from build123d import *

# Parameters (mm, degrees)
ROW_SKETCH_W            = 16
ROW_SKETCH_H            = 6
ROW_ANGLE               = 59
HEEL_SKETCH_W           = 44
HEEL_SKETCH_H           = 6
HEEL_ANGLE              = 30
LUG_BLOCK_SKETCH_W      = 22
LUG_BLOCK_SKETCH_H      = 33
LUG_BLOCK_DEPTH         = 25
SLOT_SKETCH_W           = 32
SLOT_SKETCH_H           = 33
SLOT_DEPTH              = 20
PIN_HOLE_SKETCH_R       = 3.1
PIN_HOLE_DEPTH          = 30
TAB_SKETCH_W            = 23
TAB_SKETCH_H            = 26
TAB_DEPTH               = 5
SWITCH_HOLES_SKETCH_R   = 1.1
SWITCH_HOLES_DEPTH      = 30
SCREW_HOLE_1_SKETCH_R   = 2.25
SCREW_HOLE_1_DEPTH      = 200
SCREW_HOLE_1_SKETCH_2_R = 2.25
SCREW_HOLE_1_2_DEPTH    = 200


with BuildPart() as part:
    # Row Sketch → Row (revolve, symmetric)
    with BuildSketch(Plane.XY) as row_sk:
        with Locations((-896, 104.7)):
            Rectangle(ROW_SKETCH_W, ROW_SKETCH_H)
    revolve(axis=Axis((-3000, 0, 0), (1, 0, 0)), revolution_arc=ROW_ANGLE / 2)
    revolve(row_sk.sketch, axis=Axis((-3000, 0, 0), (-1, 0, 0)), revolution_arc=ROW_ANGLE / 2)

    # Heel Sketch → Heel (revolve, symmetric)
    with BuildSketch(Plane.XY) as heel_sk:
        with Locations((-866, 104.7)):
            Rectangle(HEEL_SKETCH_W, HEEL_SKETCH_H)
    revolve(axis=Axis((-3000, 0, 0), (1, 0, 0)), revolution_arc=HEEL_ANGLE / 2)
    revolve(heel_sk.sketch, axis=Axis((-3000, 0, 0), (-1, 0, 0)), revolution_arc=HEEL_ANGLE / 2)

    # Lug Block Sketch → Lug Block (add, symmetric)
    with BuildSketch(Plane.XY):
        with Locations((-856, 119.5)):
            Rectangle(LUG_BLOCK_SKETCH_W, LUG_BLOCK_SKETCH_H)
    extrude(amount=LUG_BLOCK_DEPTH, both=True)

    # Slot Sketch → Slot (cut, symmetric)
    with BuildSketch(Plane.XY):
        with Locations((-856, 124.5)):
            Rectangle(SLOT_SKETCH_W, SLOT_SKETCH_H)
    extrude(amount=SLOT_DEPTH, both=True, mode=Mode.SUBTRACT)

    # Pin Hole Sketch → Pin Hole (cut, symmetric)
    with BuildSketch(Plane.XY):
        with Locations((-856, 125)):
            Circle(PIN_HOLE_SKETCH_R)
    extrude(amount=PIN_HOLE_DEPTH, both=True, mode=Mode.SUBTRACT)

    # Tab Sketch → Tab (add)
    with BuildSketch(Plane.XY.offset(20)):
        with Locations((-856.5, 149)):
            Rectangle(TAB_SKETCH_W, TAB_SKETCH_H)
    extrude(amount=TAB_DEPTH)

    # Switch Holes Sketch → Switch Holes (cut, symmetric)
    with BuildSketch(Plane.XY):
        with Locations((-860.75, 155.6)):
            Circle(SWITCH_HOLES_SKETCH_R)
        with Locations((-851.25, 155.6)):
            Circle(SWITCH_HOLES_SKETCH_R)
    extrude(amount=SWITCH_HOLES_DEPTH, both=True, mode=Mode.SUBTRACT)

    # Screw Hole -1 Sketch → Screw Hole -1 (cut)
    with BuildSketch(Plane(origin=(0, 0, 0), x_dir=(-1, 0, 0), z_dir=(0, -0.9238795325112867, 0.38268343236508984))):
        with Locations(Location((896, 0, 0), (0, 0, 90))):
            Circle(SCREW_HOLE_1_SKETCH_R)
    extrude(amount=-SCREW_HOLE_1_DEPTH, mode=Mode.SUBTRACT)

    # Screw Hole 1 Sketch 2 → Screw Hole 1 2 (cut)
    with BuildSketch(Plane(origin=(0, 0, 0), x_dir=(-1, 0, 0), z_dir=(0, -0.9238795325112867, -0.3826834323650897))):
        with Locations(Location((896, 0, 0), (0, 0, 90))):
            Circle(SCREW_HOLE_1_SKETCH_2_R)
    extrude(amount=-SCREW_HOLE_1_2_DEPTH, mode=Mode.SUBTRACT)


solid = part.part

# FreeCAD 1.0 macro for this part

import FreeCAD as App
import Part
import Sketcher

doc = App.newDocument("Part")
body = doc.addObject("PartDesign::Body", "Body")

# Sketch on XY plane
sketch1 = body.newObject("Sketcher::SketchObject", "Sketch")
sketch1.AttachmentSupport = (doc.getObject("XY_Plane"), [""])
sketch1.MapMode = "FlatFace"
sketch1.addGeometry(Part.LineSegment(App.Vector(-904, 108, 0), App.Vector(-904, 102, 0)), False)
sketch1.addGeometry(Part.LineSegment(App.Vector(-904, 102, 0), App.Vector(-888, 102, 0)), False)
sketch1.addGeometry(Part.LineSegment(App.Vector(-888, 102, 0), App.Vector(-888, 108, 0)), False)
sketch1.addGeometry(Part.LineSegment(App.Vector(-888, 108, 0), App.Vector(-904, 108, 0)), False)
sketch1.addConstraint(Sketcher.Constraint("Coincident", 0, 2, 1, 1))
sketch1.addConstraint(Sketcher.Constraint("Coincident", 1, 2, 2, 1))
sketch1.addConstraint(Sketcher.Constraint("Coincident", 2, 2, 3, 1))
sketch1.addConstraint(Sketcher.Constraint("Coincident", 3, 2, 0, 1))
sketch1.addConstraint(Sketcher.Constraint("Vertical", 0))
sketch1.addConstraint(Sketcher.Constraint("Horizontal", 1))
sketch1.addConstraint(Sketcher.Constraint("Vertical", 2))
sketch1.addConstraint(Sketcher.Constraint("Horizontal", 3))
sketch1.addConstraint(Sketcher.Constraint("DistanceX", 1, 1, 1, 2, 16.0))
sketch1.addConstraint(Sketcher.Constraint("DistanceY", 0, 2, 0, 1, 6.0))
sketch1.addConstraint(Sketcher.Constraint("DistanceX", 0, 2, -1, 1, 904.0))
sketch1.addConstraint(Sketcher.Constraint("DistanceY", -1, 1, 0, 2, 101.7))
revolution = body.newObject("PartDesign::Revolution", "Revolution")
revolution.Profile = sketch1
revolution.ReferenceAxis = (sketch1, ["H_Axis"])
revolution.Angle = 29.5

# Sketch on XY plane
sketch2 = body.newObject("Sketcher::SketchObject", "Sketch001")
sketch2.AttachmentSupport = (doc.getObject("XY_Plane"), [""])
sketch2.MapMode = "FlatFace"
sketch2.addGeometry(Part.LineSegment(App.Vector(-904, 108, 0), App.Vector(-904, 102, 0)), False)
sketch2.addGeometry(Part.LineSegment(App.Vector(-904, 102, 0), App.Vector(-888, 102, 0)), False)
sketch2.addGeometry(Part.LineSegment(App.Vector(-888, 102, 0), App.Vector(-888, 108, 0)), False)
sketch2.addGeometry(Part.LineSegment(App.Vector(-888, 108, 0), App.Vector(-904, 108, 0)), False)
sketch2.addConstraint(Sketcher.Constraint("Coincident", 0, 2, 1, 1))
sketch2.addConstraint(Sketcher.Constraint("Coincident", 1, 2, 2, 1))
sketch2.addConstraint(Sketcher.Constraint("Coincident", 2, 2, 3, 1))
sketch2.addConstraint(Sketcher.Constraint("Coincident", 3, 2, 0, 1))
sketch2.addConstraint(Sketcher.Constraint("Vertical", 0))
sketch2.addConstraint(Sketcher.Constraint("Horizontal", 1))
sketch2.addConstraint(Sketcher.Constraint("Vertical", 2))
sketch2.addConstraint(Sketcher.Constraint("Horizontal", 3))
sketch2.addConstraint(Sketcher.Constraint("DistanceX", 1, 1, 1, 2, 16.0))
sketch2.addConstraint(Sketcher.Constraint("DistanceY", 0, 2, 0, 1, 6.0))
sketch2.addConstraint(Sketcher.Constraint("DistanceX", 0, 2, -1, 1, 904.0))
sketch2.addConstraint(Sketcher.Constraint("DistanceY", -1, 1, 0, 2, 101.7))
revolution2 = body.newObject("PartDesign::Revolution", "Revolution001")
revolution2.Profile = sketch2
revolution2.ReferenceAxis = (sketch2, ["H_Axis"])
revolution2.Angle = 29.5
revolution2.Reversed = True

# Sketch on XY plane
sketch3 = body.newObject("Sketcher::SketchObject", "Sketch002")
sketch3.AttachmentSupport = (doc.getObject("XY_Plane"), [""])
sketch3.MapMode = "FlatFace"
sketch3.addGeometry(Part.LineSegment(App.Vector(-888, 108, 0), App.Vector(-888, 102, 0)), False)
sketch3.addGeometry(Part.LineSegment(App.Vector(-888, 102, 0), App.Vector(-844, 102, 0)), False)
sketch3.addGeometry(Part.LineSegment(App.Vector(-844, 102, 0), App.Vector(-844, 108, 0)), False)
sketch3.addGeometry(Part.LineSegment(App.Vector(-844, 108, 0), App.Vector(-888, 108, 0)), False)
sketch3.addConstraint(Sketcher.Constraint("Coincident", 0, 2, 1, 1))
sketch3.addConstraint(Sketcher.Constraint("Coincident", 1, 2, 2, 1))
sketch3.addConstraint(Sketcher.Constraint("Coincident", 2, 2, 3, 1))
sketch3.addConstraint(Sketcher.Constraint("Coincident", 3, 2, 0, 1))
sketch3.addConstraint(Sketcher.Constraint("Vertical", 0))
sketch3.addConstraint(Sketcher.Constraint("Horizontal", 1))
sketch3.addConstraint(Sketcher.Constraint("Vertical", 2))
sketch3.addConstraint(Sketcher.Constraint("Horizontal", 3))
sketch3.addConstraint(Sketcher.Constraint("DistanceX", 1, 1, 1, 2, 44.0))
sketch3.addConstraint(Sketcher.Constraint("DistanceY", 0, 2, 0, 1, 6.0))
sketch3.addConstraint(Sketcher.Constraint("DistanceX", 0, 2, -1, 1, 888.0))
sketch3.addConstraint(Sketcher.Constraint("DistanceY", -1, 1, 0, 2, 101.7))
revolution3 = body.newObject("PartDesign::Revolution", "Revolution002")
revolution3.Profile = sketch3
revolution3.ReferenceAxis = (sketch3, ["H_Axis"])
revolution3.Angle = 15

# Sketch on XY plane
sketch4 = body.newObject("Sketcher::SketchObject", "Sketch003")
sketch4.AttachmentSupport = (doc.getObject("XY_Plane"), [""])
sketch4.MapMode = "FlatFace"
sketch4.addGeometry(Part.LineSegment(App.Vector(-888, 108, 0), App.Vector(-888, 102, 0)), False)
sketch4.addGeometry(Part.LineSegment(App.Vector(-888, 102, 0), App.Vector(-844, 102, 0)), False)
sketch4.addGeometry(Part.LineSegment(App.Vector(-844, 102, 0), App.Vector(-844, 108, 0)), False)
sketch4.addGeometry(Part.LineSegment(App.Vector(-844, 108, 0), App.Vector(-888, 108, 0)), False)
sketch4.addConstraint(Sketcher.Constraint("Coincident", 0, 2, 1, 1))
sketch4.addConstraint(Sketcher.Constraint("Coincident", 1, 2, 2, 1))
sketch4.addConstraint(Sketcher.Constraint("Coincident", 2, 2, 3, 1))
sketch4.addConstraint(Sketcher.Constraint("Coincident", 3, 2, 0, 1))
sketch4.addConstraint(Sketcher.Constraint("Vertical", 0))
sketch4.addConstraint(Sketcher.Constraint("Horizontal", 1))
sketch4.addConstraint(Sketcher.Constraint("Vertical", 2))
sketch4.addConstraint(Sketcher.Constraint("Horizontal", 3))
sketch4.addConstraint(Sketcher.Constraint("DistanceX", 1, 1, 1, 2, 44.0))
sketch4.addConstraint(Sketcher.Constraint("DistanceY", 0, 2, 0, 1, 6.0))
sketch4.addConstraint(Sketcher.Constraint("DistanceX", 0, 2, -1, 1, 888.0))
sketch4.addConstraint(Sketcher.Constraint("DistanceY", -1, 1, 0, 2, 101.7))
revolution4 = body.newObject("PartDesign::Revolution", "Revolution003")
revolution4.Profile = sketch4
revolution4.ReferenceAxis = (sketch4, ["H_Axis"])
revolution4.Angle = 15
revolution4.Reversed = True

# Sketch on XY plane
sketch5 = body.newObject("Sketcher::SketchObject", "Sketch004")
sketch5.AttachmentSupport = (doc.getObject("XY_Plane"), [""])
sketch5.MapMode = "FlatFace"
sketch5.addGeometry(Part.LineSegment(App.Vector(-867, 136, 0), App.Vector(-867, 103, 0)), False)
sketch5.addGeometry(Part.LineSegment(App.Vector(-867, 103, 0), App.Vector(-845, 103, 0)), False)
sketch5.addGeometry(Part.LineSegment(App.Vector(-845, 103, 0), App.Vector(-845, 136, 0)), False)
sketch5.addGeometry(Part.LineSegment(App.Vector(-845, 136, 0), App.Vector(-867, 136, 0)), False)
sketch5.addConstraint(Sketcher.Constraint("Coincident", 0, 2, 1, 1))
sketch5.addConstraint(Sketcher.Constraint("Coincident", 1, 2, 2, 1))
sketch5.addConstraint(Sketcher.Constraint("Coincident", 2, 2, 3, 1))
sketch5.addConstraint(Sketcher.Constraint("Coincident", 3, 2, 0, 1))
sketch5.addConstraint(Sketcher.Constraint("Vertical", 0))
sketch5.addConstraint(Sketcher.Constraint("Horizontal", 1))
sketch5.addConstraint(Sketcher.Constraint("Vertical", 2))
sketch5.addConstraint(Sketcher.Constraint("Horizontal", 3))
sketch5.addConstraint(Sketcher.Constraint("DistanceX", 1, 1, 1, 2, 22.0))
sketch5.addConstraint(Sketcher.Constraint("DistanceY", 0, 2, 0, 1, 33.0))
sketch5.addConstraint(Sketcher.Constraint("DistanceX", 0, 2, -1, 1, 867.0))
sketch5.addConstraint(Sketcher.Constraint("DistanceY", -1, 1, 0, 2, 103.0))
pad1 = body.newObject("PartDesign::Pad", "Pad")
pad1.Profile = sketch5
pad1.Length = 50
pad1.Midplane = True

# Sketch on XY plane
sketch6 = body.newObject("Sketcher::SketchObject", "Sketch005")
sketch6.AttachmentSupport = (doc.getObject("XY_Plane"), [""])
sketch6.MapMode = "FlatFace"
sketch6.addGeometry(Part.LineSegment(App.Vector(-872, 141, 0), App.Vector(-872, 108, 0)), False)
sketch6.addGeometry(Part.LineSegment(App.Vector(-872, 108, 0), App.Vector(-840, 108, 0)), False)
sketch6.addGeometry(Part.LineSegment(App.Vector(-840, 108, 0), App.Vector(-840, 141, 0)), False)
sketch6.addGeometry(Part.LineSegment(App.Vector(-840, 141, 0), App.Vector(-872, 141, 0)), False)
sketch6.addConstraint(Sketcher.Constraint("Coincident", 0, 2, 1, 1))
sketch6.addConstraint(Sketcher.Constraint("Coincident", 1, 2, 2, 1))
sketch6.addConstraint(Sketcher.Constraint("Coincident", 2, 2, 3, 1))
sketch6.addConstraint(Sketcher.Constraint("Coincident", 3, 2, 0, 1))
sketch6.addConstraint(Sketcher.Constraint("Vertical", 0))
sketch6.addConstraint(Sketcher.Constraint("Horizontal", 1))
sketch6.addConstraint(Sketcher.Constraint("Vertical", 2))
sketch6.addConstraint(Sketcher.Constraint("Horizontal", 3))
sketch6.addConstraint(Sketcher.Constraint("DistanceX", 1, 1, 1, 2, 32.0))
sketch6.addConstraint(Sketcher.Constraint("DistanceY", 0, 2, 0, 1, 33.0))
sketch6.addConstraint(Sketcher.Constraint("DistanceX", 0, 2, -1, 1, 872.0))
sketch6.addConstraint(Sketcher.Constraint("DistanceY", -1, 1, 0, 2, 108.0))
pocket1 = body.newObject("PartDesign::Pocket", "Pocket")
pocket1.Profile = sketch6
pocket1.Length = 40
pocket1.Midplane = True

# Sketch on XY plane
sketch7 = body.newObject("Sketcher::SketchObject", "Sketch006")
sketch7.AttachmentSupport = (doc.getObject("XY_Plane"), [""])
sketch7.MapMode = "FlatFace"
sketch7.addGeometry(Part.Circle(App.Vector(-856, 125, 0), App.Vector(0, 0, 1), 3.1), False)
sketch7.addConstraint(Sketcher.Constraint("Diameter", 0, 6.2))
sketch7.addConstraint(Sketcher.Constraint("DistanceX", 0, 3, -1, 1, 856.0))
sketch7.addConstraint(Sketcher.Constraint("DistanceY", -1, 1, 0, 3, 125.0))
pocket2 = body.newObject("PartDesign::Pocket", "Pocket001")
pocket2.Profile = sketch7
pocket2.Length = 60
pocket2.Midplane = True

# Sketch on XY plane
sketch8 = body.newObject("Sketcher::SketchObject", "Sketch007")
sketch8.AttachmentSupport = (doc.getObject("XY_Plane"), [""])
sketch8.MapMode = "FlatFace"
sketch8.AttachmentOffset = App.Placement(App.Vector(0, 0, 20), App.Rotation())
sketch8.addGeometry(Part.LineSegment(App.Vector(-868, 162, 0), App.Vector(-868, 136, 0)), False)
sketch8.addGeometry(Part.LineSegment(App.Vector(-868, 136, 0), App.Vector(-845, 136, 0)), False)
sketch8.addGeometry(Part.LineSegment(App.Vector(-845, 136, 0), App.Vector(-845, 162, 0)), False)
sketch8.addGeometry(Part.LineSegment(App.Vector(-845, 162, 0), App.Vector(-868, 162, 0)), False)
sketch8.addConstraint(Sketcher.Constraint("Coincident", 0, 2, 1, 1))
sketch8.addConstraint(Sketcher.Constraint("Coincident", 1, 2, 2, 1))
sketch8.addConstraint(Sketcher.Constraint("Coincident", 2, 2, 3, 1))
sketch8.addConstraint(Sketcher.Constraint("Coincident", 3, 2, 0, 1))
sketch8.addConstraint(Sketcher.Constraint("Vertical", 0))
sketch8.addConstraint(Sketcher.Constraint("Horizontal", 1))
sketch8.addConstraint(Sketcher.Constraint("Vertical", 2))
sketch8.addConstraint(Sketcher.Constraint("Horizontal", 3))
sketch8.addConstraint(Sketcher.Constraint("DistanceX", 1, 1, 1, 2, 23.0))
sketch8.addConstraint(Sketcher.Constraint("DistanceY", 0, 2, 0, 1, 26.0))
sketch8.addConstraint(Sketcher.Constraint("DistanceX", 0, 2, -1, 1, 868.0))
sketch8.addConstraint(Sketcher.Constraint("DistanceY", -1, 1, 0, 2, 136.0))
pad2 = body.newObject("PartDesign::Pad", "Pad001")
pad2.Profile = sketch8
pad2.Length = 5

# Sketch on XY plane
sketch9 = body.newObject("Sketcher::SketchObject", "Sketch008")
sketch9.AttachmentSupport = (doc.getObject("XY_Plane"), [""])
sketch9.MapMode = "FlatFace"
sketch9.addGeometry(Part.Circle(App.Vector(-860.8, 155.6, 0), App.Vector(0, 0, 1), 1.1), False)
sketch9.addGeometry(Part.Circle(App.Vector(-851.2, 155.6, 0), App.Vector(0, 0, 1), 1.1), False)
sketch9.addConstraint(Sketcher.Constraint("Equal", 0, 1))
sketch9.addConstraint(Sketcher.Constraint("Horizontal", 0, 3, 1, 3))
sketch9.addConstraint(Sketcher.Constraint("Diameter", 0, 2.2))
sketch9.addConstraint(Sketcher.Constraint("DistanceY", -1, 1, 0, 3, 155.6))
sketch9.addConstraint(Sketcher.Constraint("DistanceX", 0, 3, 1, 3, 9.5))
sketch9.addConstraint(Sketcher.Constraint("DistanceX", 0, 3, -1, 1, 860.75))
pocket3 = body.newObject("PartDesign::Pocket", "Pocket002")
pocket3.Profile = sketch9
pocket3.Length = 60
pocket3.Midplane = True

# Sketch on an angled plane
sketch10 = body.newObject("Sketcher::SketchObject", "Sketch009")
sketch10.Placement = App.Placement(App.Vector(0, 0, 0), App.Rotation(App.Vector(-1, 0, 0), App.Vector(0, -0.382683432, -0.923879533), App.Vector(0, -0.923879533, 0.382683432), "ZXY"))
sketch10.addGeometry(Part.Circle(App.Vector(896, 0, 0), App.Vector(0, 0, 1), 2.2), False)
sketch10.addConstraint(Sketcher.Constraint("PointOnObject", 0, 3, -1))
sketch10.addConstraint(Sketcher.Constraint("Diameter", 0, 4.5))
sketch10.addConstraint(Sketcher.Constraint("DistanceX", -1, 1, 0, 3, 896.0))
pocket4 = body.newObject("PartDesign::Pocket", "Pocket003")
pocket4.Profile = sketch10
pocket4.Length = 200

# Sketch on an angled plane
sketch11 = body.newObject("Sketcher::SketchObject", "Sketch010")
sketch11.Placement = App.Placement(App.Vector(0, 0, 0), App.Rotation(App.Vector(-1, 0, 0), App.Vector(0, 0.382683432, -0.923879533), App.Vector(0, -0.923879533, -0.382683432), "ZXY"))
sketch11.addGeometry(Part.Circle(App.Vector(896, 0, 0), App.Vector(0, 0, 1), 2.2), False)
sketch11.addConstraint(Sketcher.Constraint("PointOnObject", 0, 3, -1))
sketch11.addConstraint(Sketcher.Constraint("Diameter", 0, 4.5))
sketch11.addConstraint(Sketcher.Constraint("DistanceX", -1, 1, 0, 3, 896.0))
pocket5 = body.newObject("PartDesign::Pocket", "Pocket004")
pocket5.Profile = sketch11
pocket5.Length = 200

doc.recompute()
